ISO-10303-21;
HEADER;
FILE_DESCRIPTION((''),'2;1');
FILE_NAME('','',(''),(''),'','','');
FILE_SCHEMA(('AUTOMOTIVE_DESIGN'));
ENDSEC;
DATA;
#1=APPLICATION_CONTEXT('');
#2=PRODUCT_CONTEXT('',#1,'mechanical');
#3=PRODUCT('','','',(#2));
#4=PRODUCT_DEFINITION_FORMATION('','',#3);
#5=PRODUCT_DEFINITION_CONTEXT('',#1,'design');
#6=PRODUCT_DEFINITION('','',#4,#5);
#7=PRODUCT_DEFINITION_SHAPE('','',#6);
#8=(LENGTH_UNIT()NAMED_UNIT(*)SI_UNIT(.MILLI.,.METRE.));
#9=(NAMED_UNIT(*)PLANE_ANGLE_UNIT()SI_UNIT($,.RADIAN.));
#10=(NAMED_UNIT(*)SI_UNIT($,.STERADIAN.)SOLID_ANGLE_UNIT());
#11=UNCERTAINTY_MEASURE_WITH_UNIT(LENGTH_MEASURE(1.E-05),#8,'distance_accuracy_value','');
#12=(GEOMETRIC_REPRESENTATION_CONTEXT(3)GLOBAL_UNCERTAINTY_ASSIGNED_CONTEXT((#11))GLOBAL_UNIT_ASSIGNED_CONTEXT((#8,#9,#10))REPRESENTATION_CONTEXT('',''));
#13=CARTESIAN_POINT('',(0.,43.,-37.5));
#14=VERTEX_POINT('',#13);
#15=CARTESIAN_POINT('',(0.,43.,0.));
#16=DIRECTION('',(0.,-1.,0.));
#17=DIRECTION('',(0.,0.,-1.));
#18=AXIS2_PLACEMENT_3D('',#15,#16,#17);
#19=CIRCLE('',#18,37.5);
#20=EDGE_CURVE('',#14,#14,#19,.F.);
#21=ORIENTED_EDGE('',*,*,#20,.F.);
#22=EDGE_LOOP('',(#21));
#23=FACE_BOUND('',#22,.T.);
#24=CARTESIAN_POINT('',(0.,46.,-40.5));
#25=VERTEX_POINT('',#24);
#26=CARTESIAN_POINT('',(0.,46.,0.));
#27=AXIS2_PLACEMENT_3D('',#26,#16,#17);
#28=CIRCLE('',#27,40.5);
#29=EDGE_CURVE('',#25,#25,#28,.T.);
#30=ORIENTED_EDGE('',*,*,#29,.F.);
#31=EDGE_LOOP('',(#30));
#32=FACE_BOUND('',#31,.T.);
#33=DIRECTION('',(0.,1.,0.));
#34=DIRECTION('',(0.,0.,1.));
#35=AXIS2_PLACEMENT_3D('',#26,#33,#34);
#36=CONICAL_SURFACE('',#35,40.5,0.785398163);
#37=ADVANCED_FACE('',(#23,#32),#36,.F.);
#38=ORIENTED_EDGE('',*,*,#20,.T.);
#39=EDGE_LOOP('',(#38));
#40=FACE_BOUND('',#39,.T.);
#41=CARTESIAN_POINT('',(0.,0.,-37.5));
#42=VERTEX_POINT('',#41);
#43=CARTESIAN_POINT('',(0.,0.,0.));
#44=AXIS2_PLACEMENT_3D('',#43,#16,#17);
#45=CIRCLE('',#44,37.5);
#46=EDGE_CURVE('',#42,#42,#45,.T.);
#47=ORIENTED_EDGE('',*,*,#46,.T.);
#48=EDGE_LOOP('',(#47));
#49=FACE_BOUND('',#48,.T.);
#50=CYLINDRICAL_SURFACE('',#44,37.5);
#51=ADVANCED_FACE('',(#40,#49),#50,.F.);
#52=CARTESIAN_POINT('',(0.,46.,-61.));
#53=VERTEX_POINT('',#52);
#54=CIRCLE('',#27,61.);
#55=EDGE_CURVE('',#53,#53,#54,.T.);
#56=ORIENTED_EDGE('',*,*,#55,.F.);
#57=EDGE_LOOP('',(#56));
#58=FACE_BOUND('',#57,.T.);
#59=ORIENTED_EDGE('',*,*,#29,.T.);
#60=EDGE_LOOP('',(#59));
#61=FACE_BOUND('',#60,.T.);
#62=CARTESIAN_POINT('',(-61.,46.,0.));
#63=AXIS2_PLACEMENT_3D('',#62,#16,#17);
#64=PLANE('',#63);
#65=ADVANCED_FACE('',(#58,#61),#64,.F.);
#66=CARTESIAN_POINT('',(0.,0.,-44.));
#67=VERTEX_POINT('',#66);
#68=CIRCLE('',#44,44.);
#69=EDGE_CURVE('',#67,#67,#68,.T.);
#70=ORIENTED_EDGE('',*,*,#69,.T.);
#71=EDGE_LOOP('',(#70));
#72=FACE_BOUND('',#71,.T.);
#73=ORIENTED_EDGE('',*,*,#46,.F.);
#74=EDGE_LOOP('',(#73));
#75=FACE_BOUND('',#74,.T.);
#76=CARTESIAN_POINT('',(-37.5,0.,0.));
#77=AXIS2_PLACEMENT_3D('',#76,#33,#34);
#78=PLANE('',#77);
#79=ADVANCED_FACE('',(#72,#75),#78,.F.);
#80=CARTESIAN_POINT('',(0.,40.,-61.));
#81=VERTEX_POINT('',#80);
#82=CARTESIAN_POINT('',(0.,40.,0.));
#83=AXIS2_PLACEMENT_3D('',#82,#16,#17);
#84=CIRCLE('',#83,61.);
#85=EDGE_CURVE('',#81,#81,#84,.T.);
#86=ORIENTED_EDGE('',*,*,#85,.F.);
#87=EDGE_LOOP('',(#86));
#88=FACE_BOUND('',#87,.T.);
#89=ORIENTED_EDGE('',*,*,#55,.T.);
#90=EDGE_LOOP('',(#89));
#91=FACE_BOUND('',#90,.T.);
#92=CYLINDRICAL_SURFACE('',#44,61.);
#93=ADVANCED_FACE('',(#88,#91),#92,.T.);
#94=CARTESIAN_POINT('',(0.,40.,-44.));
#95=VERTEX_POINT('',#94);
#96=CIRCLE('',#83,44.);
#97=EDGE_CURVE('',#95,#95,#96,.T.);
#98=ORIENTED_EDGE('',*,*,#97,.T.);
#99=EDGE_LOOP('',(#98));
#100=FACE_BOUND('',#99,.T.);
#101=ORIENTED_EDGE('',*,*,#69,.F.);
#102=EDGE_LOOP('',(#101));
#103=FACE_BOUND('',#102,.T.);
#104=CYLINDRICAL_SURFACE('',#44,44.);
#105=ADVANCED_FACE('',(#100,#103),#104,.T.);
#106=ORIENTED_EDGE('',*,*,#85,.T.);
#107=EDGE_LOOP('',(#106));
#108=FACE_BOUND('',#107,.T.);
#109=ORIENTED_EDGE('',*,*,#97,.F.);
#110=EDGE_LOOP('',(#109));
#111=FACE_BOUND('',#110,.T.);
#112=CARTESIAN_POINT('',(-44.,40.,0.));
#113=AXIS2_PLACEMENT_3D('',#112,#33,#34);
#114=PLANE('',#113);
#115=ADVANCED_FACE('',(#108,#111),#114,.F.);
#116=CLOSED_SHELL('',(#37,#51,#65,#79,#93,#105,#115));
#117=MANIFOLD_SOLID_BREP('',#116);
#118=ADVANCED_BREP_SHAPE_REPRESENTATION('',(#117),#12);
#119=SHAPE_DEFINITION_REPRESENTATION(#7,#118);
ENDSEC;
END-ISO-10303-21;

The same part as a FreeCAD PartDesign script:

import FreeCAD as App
import Part
import Sketcher


def edges_at(feature, points):
    """Names of the edges that pass closest to the given points."""
    edges = feature.Shape.Edges
    near = lambda p: min(range(len(edges)), key=lambda i: edges[i].distToShape(Part.Vertex(*p))[0])
    return sorted({f"Edge{near(p) + 1}" for p in points})

doc = App.newDocument("Part")
params = doc.addObject("Spreadsheet::Sheet", "Params")
for row, (alias, value) in enumerate([
    ("sketch1_width", "17 mm"),
    ("sketch1_height", "40 mm"),
    ("sketch1_height2", "46 mm"),
    ("sketch1_width2", "6.5 mm"),
    ("revolution_angle", "360 deg"),
    ("chamfer_size", "3 mm"),
], start=1):
    params.set(f"A{row}", alias)
    params.set(f"B{row}", "=" + value)
    params.setAlias(f"B{row}", alias)

body = doc.addObject("PartDesign::Body", "Body")

sketch1 = body.newObject("Sketcher::SketchObject", "Sketch")
sketch1.AttachmentSupport = (doc.getObject("XY_Plane"), [""])
sketch1.MapMode = "FlatFace"
sketch1.addGeometry([
    Part.LineSegment(App.Vector(-44, 40, 0), App.Vector(-44, 0, 0)),
    Part.LineSegment(App.Vector(-44, 0, 0), App.Vector(-37.5, 0, 0)),
    Part.LineSegment(App.Vector(-37.5, 0, 0), App.Vector(-37.5, 46, 0)),
    Part.LineSegment(App.Vector(-37.5, 46, 0), App.Vector(-61, 46, 0)),
    Part.LineSegment(App.Vector(-61, 46, 0), App.Vector(-61, 40, 0)),
    Part.LineSegment(App.Vector(-61, 40, 0), App.Vector(-44, 40, 0)),
], False)
sketch1.addConstraint([
    Sketcher.Constraint("Coincident", 0, 2, 1, 1),
    Sketcher.Constraint("Coincident", 1, 2, 2, 1),
    Sketcher.Constraint("Coincident", 2, 2, 3, 1),
    Sketcher.Constraint("Coincident", 3, 2, 4, 1),
    Sketcher.Constraint("Coincident", 4, 2, 5, 1),
    Sketcher.Constraint("Coincident", 5, 2, 0, 1),
    Sketcher.Constraint("Vertical", 0),
    Sketcher.Constraint("Horizontal", 1),
    Sketcher.Constraint("Vertical", 2),
    Sketcher.Constraint("Horizontal", 3),
    Sketcher.Constraint("Vertical", 4),
    Sketcher.Constraint("Horizontal", 5),
    Sketcher.Constraint("PointOnObject", 0, 2, -1),
    Sketcher.Constraint("DistanceX", 5, 1, 5, 2, 17.0),
    Sketcher.Constraint("DistanceY", 0, 2, 0, 1, 40.0),
    Sketcher.Constraint("DistanceY", 2, 1, 2, 2, 46.0),
    Sketcher.Constraint("DistanceX", 1, 1, 1, 2, 6.5),
    Sketcher.Constraint("DistanceX", 0, 2, -1, 1, 44.0),
])
sketch1.setExpression("Constraints[13]", "Params.sketch1_width")
sketch1.setExpression("Constraints[14]", "Params.sketch1_height")
sketch1.setExpression("Constraints[15]", "Params.sketch1_height2")
sketch1.setExpression("Constraints[16]", "Params.sketch1_width2")
revolution = body.newObject("PartDesign::Revolution", "Revolution")
revolution.Profile = sketch1
revolution.ReferenceAxis = (sketch1, ["V_Axis"])
revolution.setExpression("Angle", "Params.revolution_angle")
doc.recompute()

chamfer = body.newObject("PartDesign::Chamfer", "Chamfer")
chamfer.Base = (revolution, edges_at(revolution, [(0, 46, 37.5)]))
chamfer.setExpression("Size", "Params.chamfer_size")

doc.recompute()
